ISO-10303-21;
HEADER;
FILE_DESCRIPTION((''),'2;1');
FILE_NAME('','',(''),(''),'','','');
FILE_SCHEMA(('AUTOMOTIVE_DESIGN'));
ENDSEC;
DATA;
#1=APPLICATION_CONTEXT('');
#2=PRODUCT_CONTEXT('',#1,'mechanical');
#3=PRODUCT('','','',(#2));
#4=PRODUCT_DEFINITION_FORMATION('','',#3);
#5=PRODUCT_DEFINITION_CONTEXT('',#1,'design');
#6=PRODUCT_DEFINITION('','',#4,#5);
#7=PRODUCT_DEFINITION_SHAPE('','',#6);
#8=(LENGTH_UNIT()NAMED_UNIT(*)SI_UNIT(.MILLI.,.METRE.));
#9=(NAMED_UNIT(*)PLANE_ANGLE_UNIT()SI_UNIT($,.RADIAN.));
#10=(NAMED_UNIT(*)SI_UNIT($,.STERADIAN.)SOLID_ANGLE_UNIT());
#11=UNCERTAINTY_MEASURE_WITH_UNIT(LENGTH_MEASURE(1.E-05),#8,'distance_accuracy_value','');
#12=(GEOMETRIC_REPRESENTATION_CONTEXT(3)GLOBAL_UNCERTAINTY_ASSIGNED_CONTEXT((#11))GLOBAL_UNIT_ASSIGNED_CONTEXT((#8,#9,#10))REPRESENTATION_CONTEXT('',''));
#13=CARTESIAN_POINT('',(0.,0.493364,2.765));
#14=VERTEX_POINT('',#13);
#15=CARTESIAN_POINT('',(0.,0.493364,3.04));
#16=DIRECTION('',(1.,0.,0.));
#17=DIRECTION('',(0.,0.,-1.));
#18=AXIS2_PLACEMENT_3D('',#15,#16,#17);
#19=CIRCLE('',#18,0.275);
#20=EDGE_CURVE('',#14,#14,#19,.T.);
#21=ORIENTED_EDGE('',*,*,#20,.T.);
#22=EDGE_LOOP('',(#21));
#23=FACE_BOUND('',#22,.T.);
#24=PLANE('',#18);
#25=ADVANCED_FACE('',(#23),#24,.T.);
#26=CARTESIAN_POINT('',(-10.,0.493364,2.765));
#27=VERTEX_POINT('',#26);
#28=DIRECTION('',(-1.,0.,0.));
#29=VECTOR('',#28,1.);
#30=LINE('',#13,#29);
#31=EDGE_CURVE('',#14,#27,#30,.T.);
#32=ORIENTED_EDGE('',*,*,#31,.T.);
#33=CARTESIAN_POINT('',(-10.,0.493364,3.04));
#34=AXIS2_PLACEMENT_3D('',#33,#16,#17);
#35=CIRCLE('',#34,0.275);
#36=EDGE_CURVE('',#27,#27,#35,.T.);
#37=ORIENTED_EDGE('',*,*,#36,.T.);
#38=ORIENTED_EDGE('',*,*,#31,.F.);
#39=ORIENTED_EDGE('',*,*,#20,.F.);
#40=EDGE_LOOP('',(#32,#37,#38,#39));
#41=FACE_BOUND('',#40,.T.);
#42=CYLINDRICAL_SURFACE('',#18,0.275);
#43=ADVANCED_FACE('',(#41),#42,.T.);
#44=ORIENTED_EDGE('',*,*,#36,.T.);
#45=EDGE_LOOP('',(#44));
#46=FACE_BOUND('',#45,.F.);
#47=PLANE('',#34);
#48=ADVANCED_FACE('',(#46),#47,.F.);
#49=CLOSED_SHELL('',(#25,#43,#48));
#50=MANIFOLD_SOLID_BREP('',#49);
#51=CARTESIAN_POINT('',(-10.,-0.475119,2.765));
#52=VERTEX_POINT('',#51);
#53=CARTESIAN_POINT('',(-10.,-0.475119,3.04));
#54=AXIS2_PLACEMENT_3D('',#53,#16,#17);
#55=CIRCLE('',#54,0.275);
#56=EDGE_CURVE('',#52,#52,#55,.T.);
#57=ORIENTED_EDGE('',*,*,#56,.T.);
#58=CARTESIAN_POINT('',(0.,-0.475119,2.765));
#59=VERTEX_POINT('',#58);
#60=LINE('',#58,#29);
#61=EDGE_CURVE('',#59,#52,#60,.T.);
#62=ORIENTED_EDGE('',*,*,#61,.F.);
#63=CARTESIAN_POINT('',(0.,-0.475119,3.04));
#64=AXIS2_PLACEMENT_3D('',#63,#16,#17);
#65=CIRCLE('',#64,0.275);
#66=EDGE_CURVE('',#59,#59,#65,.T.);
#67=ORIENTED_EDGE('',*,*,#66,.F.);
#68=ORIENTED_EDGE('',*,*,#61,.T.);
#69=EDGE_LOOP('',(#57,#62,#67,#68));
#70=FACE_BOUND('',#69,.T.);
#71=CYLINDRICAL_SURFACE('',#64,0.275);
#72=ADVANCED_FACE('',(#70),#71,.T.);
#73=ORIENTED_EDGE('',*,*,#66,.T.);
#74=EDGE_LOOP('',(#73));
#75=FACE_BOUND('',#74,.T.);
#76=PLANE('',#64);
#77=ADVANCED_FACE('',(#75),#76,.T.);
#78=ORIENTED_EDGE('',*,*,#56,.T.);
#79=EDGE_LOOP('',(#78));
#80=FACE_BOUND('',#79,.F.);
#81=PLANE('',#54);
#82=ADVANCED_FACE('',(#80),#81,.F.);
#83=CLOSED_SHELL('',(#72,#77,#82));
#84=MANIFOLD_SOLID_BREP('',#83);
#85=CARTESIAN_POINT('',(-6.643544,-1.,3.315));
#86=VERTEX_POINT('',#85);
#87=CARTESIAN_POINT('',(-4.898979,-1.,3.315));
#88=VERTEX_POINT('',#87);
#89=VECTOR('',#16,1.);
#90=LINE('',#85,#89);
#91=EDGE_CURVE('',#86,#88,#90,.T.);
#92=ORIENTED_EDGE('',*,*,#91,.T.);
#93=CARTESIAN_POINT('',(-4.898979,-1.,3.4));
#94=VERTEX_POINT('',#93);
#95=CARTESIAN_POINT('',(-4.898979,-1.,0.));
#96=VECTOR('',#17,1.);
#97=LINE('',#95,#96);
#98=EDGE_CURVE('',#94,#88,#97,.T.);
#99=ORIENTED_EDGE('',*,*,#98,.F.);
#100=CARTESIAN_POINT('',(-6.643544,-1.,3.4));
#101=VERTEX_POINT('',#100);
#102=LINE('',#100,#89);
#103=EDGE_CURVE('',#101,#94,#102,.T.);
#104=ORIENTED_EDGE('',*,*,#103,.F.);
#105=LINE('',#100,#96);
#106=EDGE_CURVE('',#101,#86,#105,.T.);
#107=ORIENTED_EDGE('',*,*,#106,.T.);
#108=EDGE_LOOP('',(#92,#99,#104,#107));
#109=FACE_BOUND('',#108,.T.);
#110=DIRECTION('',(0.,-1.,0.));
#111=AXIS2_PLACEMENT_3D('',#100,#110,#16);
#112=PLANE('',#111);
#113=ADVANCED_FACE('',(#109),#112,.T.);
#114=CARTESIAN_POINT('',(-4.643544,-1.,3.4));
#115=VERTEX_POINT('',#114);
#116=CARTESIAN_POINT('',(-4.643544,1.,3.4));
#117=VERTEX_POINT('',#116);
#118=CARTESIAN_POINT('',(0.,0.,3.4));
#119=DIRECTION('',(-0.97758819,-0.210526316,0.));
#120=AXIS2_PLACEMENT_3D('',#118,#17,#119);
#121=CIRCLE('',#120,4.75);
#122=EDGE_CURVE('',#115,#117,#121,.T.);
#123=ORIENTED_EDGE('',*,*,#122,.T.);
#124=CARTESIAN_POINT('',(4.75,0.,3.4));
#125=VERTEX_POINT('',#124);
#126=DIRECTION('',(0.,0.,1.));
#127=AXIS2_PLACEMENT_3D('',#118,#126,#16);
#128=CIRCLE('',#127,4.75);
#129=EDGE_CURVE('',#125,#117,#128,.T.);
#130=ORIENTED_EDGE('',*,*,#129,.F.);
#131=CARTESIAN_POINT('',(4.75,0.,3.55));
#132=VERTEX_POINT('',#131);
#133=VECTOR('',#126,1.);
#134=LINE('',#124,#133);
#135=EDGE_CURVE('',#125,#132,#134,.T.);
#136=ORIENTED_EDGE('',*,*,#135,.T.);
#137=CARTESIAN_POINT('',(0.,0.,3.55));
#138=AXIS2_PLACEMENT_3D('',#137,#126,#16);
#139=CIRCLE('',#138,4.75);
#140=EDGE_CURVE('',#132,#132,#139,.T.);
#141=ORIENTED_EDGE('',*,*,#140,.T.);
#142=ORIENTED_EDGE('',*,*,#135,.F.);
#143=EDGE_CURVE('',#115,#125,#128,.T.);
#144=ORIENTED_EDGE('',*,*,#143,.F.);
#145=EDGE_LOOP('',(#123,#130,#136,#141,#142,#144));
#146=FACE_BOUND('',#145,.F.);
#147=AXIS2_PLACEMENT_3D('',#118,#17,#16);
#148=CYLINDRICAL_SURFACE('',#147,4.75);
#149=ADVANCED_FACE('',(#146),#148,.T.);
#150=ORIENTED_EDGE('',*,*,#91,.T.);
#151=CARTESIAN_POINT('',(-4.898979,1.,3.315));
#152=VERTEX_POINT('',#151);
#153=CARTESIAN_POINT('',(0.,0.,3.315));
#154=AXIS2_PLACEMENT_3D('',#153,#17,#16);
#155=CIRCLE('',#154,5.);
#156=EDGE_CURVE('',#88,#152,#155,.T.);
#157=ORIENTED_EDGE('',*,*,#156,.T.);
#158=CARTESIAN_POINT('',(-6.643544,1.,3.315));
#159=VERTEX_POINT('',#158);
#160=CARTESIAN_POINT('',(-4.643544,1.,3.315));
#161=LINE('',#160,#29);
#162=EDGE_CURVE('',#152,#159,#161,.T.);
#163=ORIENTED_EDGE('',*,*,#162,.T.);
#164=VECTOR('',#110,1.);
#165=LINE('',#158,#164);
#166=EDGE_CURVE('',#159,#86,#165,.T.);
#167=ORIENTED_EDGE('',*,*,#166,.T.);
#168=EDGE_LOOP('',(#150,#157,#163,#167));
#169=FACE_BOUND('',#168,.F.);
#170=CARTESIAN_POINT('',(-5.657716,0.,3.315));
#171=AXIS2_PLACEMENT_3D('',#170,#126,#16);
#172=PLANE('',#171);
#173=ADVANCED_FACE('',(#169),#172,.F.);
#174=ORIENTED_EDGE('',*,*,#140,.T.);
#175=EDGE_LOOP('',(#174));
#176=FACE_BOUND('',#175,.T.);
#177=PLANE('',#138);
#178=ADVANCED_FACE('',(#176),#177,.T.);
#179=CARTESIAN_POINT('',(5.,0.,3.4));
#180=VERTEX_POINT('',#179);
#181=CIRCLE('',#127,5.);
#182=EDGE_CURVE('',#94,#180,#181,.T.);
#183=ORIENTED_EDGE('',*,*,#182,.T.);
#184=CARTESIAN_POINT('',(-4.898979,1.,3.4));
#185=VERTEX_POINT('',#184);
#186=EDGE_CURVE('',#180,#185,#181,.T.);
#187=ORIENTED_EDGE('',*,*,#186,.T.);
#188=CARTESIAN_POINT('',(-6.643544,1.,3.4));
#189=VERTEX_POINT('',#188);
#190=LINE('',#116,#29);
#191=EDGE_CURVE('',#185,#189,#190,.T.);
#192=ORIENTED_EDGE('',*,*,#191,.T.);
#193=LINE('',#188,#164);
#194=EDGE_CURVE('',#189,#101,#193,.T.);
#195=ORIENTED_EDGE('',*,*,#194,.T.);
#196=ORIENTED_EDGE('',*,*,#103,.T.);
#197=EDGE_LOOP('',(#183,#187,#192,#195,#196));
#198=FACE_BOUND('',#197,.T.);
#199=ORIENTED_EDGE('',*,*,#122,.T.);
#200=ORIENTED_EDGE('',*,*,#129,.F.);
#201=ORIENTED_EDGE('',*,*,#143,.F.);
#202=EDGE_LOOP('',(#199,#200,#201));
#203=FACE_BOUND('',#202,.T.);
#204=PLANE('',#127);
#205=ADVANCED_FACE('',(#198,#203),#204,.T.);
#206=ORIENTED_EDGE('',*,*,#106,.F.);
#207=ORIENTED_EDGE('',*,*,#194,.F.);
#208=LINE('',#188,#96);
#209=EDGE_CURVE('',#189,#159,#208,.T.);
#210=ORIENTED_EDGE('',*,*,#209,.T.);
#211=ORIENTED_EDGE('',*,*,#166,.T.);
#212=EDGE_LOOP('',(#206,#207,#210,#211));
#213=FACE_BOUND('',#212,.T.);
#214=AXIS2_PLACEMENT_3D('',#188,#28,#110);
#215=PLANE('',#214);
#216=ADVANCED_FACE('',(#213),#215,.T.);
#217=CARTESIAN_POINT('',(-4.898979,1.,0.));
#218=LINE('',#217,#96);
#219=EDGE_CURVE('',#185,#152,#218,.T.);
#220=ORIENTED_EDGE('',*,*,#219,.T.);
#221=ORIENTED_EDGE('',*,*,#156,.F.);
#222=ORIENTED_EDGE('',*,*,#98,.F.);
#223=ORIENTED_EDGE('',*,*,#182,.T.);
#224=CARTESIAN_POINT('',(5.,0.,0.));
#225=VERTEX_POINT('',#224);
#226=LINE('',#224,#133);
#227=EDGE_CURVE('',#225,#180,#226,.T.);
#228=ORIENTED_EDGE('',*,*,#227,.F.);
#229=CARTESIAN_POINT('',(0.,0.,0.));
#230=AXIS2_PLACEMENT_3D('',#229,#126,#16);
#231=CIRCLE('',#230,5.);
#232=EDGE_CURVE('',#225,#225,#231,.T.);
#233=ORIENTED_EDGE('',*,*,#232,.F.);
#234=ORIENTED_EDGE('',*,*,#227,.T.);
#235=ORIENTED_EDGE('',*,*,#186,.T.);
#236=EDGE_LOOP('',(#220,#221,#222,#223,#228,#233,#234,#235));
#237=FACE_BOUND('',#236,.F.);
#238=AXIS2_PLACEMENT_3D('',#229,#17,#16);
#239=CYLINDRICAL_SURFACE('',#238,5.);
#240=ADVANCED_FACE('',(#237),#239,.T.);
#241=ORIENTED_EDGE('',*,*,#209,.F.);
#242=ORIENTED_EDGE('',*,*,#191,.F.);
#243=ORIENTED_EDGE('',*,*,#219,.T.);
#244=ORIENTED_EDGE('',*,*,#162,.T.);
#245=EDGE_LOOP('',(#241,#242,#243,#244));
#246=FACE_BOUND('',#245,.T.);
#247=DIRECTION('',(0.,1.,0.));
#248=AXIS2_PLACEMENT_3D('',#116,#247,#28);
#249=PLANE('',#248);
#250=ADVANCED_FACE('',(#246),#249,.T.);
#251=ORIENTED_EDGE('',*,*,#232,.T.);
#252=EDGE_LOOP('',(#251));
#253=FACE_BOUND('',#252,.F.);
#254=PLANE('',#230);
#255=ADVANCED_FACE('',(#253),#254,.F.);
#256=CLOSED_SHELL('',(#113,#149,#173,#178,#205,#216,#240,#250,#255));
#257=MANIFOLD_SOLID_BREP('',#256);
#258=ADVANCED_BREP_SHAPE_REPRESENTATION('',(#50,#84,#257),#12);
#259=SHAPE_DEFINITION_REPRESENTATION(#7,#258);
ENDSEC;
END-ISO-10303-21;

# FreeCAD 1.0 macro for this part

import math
import FreeCAD as App
import Part
import Sketcher

doc = App.newDocument("Part")
params = doc.addObject("Spreadsheet::Sheet", "Params")
for row, (alias, value) in enumerate([
    ("sketch1_diameter", "10 mm"),
    ("pad1_length", "3.4 mm"),
    ("sketch2_diameter", "9.5 mm"),
    ("pad2_length", "0.15 mm"),
    ("sketch3_width", "2 mm"),
    ("sketch3_radius", "4.75 mm"),
    ("pad3_length", "0.085 mm"),
    ("sketch4_diameter", "0.55 mm"),
    ("pad4_length", "10 mm"),
    ("sketch5_diameter", "0.55 mm"),
    ("pad5_length", "10 mm"),
], start=1):
    params.set(f"A{row}", alias)
    params.set(f"B{row}", "=" + value)
    params.setAlias(f"B{row}", alias)

body = doc.addObject("PartDesign::Body", "Body")

sketch1 = doc.addObject("Sketcher::SketchObject", "Sketch")
body.addObject(sketch1)
sketch1.AttachmentSupport = (doc.XY_Plane, [""])
sketch1.MapMode = "FlatFace"
sketch1.addGeometry(Part.Circle(App.Vector(0, 0, 0), App.Vector(0, 0, 1), 5), False)
sketch1.addConstraint(Sketcher.Constraint("Coincident", 0, 3, -1, 1))
sketch1.addConstraint(Sketcher.Constraint("Diameter", 0, 10.0))
sketch1.setExpression("Constraints[1]", "Params.sketch1_diameter")
pad1 = doc.addObject("PartDesign::Pad", "Pad")
body.addObject(pad1)
pad1.Profile = sketch1
pad1.setExpression("Length", "Params.pad1_length")

sketch2 = doc.addObject("Sketcher::SketchObject", "Sketch001")
body.addObject(sketch2)
sketch2.AttachmentSupport = (doc.XY_Plane, [""])
sketch2.MapMode = "FlatFace"
sketch2.AttachmentOffset = App.Placement(App.Vector(0, 0, 3.4), App.Rotation())
sketch2.addGeometry(Part.Circle(App.Vector(0, 0, 0), App.Vector(0, 0, 1), 4.8), False)
sketch2.addConstraint(Sketcher.Constraint("Coincident", 0, 3, -1, 1))
sketch2.addConstraint(Sketcher.Constraint("Diameter", 0, 9.5))
sketch2.setExpression("Constraints[1]", "Params.sketch2_diameter")
pad2 = doc.addObject("PartDesign::Pad", "Pad001")
body.addObject(pad2)
pad2.Profile = sketch2
pad2.setExpression("Length", "Params.pad2_length")

sketch3 = doc.addObject("Sketcher::SketchObject", "Sketch002")
body.addObject(sketch3)
sketch3.AttachmentSupport = (doc.XY_Plane, [""])
sketch3.MapMode = "FlatFace"
sketch3.AttachmentOffset = App.Placement(App.Vector(0, 0, 3.4), App.Rotation())
sketch3.addGeometry(Part.LineSegment(App.Vector(-4.6, 1, 0), App.Vector(-6.6, 1, 0)), False)
sketch3.addGeometry(Part.LineSegment(App.Vector(-6.6, 1, 0), App.Vector(-6.6, -1, 0)), False)
sketch3.addGeometry(Part.LineSegment(App.Vector(-6.6, -1, 0), App.Vector(-4.6, -1, 0)), False)
sketch3.addGeometry(Part.ArcOfCircle(Part.Circle(App.Vector(0, 0, 0), App.Vector(0, 0, 1), 4.7), math.radians(168), math.radians(192)), False)
sketch3.addConstraint(Sketcher.Constraint("Coincident", 0, 2, 1, 1))
sketch3.addConstraint(Sketcher.Constraint("Coincident", 1, 2, 2, 1))
sketch3.addConstraint(Sketcher.Constraint("Coincident", 2, 2, 3, 2))
sketch3.addConstraint(Sketcher.Constraint("Coincident", 3, 1, 0, 1))
sketch3.addConstraint(Sketcher.Constraint("Horizontal", 0))
sketch3.addConstraint(Sketcher.Constraint("Vertical", 1))
sketch3.addConstraint(Sketcher.Constraint("Horizontal", 2))
sketch3.addConstraint(Sketcher.Constraint("Coincident", 3, 3, -1, 1))
sketch3.addConstraint(Sketcher.Constraint("Vertical", 2, 2, 3, 1))
sketch3.addConstraint(Sketcher.Constraint("Equal", 2, 1))
sketch3.addConstraint(Sketcher.Constraint("DistanceX", 0, 2, 0, 1, 2.0))
sketch3.addConstraint(Sketcher.Constraint("Radius", 3, 4.75))
sketch3.setExpression("Constraints[10]", "Params.sketch3_width")
sketch3.setExpression("Constraints[11]", "Params.sketch3_radius")
pad3 = doc.addObject("PartDesign::Pad", "Pad002")
body.addObject(pad3)
pad3.Profile = sketch3
pad3.setExpression("Length", "Params.pad3_length")
pad3.Reversed = True
body2 = doc.addObject("PartDesign::Body", "Body001")

sketch4 = doc.addObject("Sketcher::SketchObject", "Sketch003")
body2.addObject(sketch4)
sketch4.AttachmentSupport = (doc.getObject("YZ_Plane001"), [""])
sketch4.MapMode = "FlatFace"
sketch4.addGeometry(Part.Circle(App.Vector(0.49, 3.04, 0), App.Vector(0, 0, 1), 0.28), False)
sketch4.addConstraint(Sketcher.Constraint("Diameter", 0, 0.55))
sketch4.addConstraint(Sketcher.Constraint("DistanceY", -1, 1, 0, 3, 3.04))
sketch4.addConstraint(Sketcher.Constraint("DistanceX", -1, 1, 0, 3, 0.493364))
sketch4.setExpression("Constraints[0]", "Params.sketch4_diameter")
pad4 = doc.addObject("PartDesign::Pad", "Pad003")
body2.addObject(pad4)
pad4.Profile = sketch4
pad4.setExpression("Length", "Params.pad4_length")
pad4.Reversed = True
body3 = doc.addObject("PartDesign::Body", "Body002")

sketch5 = doc.addObject("Sketcher::SketchObject", "Sketch004")
body3.addObject(sketch5)
sketch5.AttachmentSupport = (doc.getObject("YZ_Plane002"), [""])
sketch5.MapMode = "FlatFace"
sketch5.addGeometry(Part.Circle(App.Vector(-0.48, 3.04, 0), App.Vector(0, 0, 1), 0.28), False)
sketch5.addConstraint(Sketcher.Constraint("Diameter", 0, 0.55))
sketch5.addConstraint(Sketcher.Constraint("DistanceY", -1, 1, 0, 3, 3.04))
sketch5.addConstraint(Sketcher.Constraint("DistanceX", 0, 3, -1, 1, 0.475119))
sketch5.setExpression("Constraints[0]", "Params.sketch5_diameter")
pad5 = doc.addObject("PartDesign::Pad", "Pad004")
body3.addObject(pad5)
pad5.Profile = sketch5
pad5.setExpression("Length", "Params.pad5_length")
pad5.Reversed = True

doc.recompute()
